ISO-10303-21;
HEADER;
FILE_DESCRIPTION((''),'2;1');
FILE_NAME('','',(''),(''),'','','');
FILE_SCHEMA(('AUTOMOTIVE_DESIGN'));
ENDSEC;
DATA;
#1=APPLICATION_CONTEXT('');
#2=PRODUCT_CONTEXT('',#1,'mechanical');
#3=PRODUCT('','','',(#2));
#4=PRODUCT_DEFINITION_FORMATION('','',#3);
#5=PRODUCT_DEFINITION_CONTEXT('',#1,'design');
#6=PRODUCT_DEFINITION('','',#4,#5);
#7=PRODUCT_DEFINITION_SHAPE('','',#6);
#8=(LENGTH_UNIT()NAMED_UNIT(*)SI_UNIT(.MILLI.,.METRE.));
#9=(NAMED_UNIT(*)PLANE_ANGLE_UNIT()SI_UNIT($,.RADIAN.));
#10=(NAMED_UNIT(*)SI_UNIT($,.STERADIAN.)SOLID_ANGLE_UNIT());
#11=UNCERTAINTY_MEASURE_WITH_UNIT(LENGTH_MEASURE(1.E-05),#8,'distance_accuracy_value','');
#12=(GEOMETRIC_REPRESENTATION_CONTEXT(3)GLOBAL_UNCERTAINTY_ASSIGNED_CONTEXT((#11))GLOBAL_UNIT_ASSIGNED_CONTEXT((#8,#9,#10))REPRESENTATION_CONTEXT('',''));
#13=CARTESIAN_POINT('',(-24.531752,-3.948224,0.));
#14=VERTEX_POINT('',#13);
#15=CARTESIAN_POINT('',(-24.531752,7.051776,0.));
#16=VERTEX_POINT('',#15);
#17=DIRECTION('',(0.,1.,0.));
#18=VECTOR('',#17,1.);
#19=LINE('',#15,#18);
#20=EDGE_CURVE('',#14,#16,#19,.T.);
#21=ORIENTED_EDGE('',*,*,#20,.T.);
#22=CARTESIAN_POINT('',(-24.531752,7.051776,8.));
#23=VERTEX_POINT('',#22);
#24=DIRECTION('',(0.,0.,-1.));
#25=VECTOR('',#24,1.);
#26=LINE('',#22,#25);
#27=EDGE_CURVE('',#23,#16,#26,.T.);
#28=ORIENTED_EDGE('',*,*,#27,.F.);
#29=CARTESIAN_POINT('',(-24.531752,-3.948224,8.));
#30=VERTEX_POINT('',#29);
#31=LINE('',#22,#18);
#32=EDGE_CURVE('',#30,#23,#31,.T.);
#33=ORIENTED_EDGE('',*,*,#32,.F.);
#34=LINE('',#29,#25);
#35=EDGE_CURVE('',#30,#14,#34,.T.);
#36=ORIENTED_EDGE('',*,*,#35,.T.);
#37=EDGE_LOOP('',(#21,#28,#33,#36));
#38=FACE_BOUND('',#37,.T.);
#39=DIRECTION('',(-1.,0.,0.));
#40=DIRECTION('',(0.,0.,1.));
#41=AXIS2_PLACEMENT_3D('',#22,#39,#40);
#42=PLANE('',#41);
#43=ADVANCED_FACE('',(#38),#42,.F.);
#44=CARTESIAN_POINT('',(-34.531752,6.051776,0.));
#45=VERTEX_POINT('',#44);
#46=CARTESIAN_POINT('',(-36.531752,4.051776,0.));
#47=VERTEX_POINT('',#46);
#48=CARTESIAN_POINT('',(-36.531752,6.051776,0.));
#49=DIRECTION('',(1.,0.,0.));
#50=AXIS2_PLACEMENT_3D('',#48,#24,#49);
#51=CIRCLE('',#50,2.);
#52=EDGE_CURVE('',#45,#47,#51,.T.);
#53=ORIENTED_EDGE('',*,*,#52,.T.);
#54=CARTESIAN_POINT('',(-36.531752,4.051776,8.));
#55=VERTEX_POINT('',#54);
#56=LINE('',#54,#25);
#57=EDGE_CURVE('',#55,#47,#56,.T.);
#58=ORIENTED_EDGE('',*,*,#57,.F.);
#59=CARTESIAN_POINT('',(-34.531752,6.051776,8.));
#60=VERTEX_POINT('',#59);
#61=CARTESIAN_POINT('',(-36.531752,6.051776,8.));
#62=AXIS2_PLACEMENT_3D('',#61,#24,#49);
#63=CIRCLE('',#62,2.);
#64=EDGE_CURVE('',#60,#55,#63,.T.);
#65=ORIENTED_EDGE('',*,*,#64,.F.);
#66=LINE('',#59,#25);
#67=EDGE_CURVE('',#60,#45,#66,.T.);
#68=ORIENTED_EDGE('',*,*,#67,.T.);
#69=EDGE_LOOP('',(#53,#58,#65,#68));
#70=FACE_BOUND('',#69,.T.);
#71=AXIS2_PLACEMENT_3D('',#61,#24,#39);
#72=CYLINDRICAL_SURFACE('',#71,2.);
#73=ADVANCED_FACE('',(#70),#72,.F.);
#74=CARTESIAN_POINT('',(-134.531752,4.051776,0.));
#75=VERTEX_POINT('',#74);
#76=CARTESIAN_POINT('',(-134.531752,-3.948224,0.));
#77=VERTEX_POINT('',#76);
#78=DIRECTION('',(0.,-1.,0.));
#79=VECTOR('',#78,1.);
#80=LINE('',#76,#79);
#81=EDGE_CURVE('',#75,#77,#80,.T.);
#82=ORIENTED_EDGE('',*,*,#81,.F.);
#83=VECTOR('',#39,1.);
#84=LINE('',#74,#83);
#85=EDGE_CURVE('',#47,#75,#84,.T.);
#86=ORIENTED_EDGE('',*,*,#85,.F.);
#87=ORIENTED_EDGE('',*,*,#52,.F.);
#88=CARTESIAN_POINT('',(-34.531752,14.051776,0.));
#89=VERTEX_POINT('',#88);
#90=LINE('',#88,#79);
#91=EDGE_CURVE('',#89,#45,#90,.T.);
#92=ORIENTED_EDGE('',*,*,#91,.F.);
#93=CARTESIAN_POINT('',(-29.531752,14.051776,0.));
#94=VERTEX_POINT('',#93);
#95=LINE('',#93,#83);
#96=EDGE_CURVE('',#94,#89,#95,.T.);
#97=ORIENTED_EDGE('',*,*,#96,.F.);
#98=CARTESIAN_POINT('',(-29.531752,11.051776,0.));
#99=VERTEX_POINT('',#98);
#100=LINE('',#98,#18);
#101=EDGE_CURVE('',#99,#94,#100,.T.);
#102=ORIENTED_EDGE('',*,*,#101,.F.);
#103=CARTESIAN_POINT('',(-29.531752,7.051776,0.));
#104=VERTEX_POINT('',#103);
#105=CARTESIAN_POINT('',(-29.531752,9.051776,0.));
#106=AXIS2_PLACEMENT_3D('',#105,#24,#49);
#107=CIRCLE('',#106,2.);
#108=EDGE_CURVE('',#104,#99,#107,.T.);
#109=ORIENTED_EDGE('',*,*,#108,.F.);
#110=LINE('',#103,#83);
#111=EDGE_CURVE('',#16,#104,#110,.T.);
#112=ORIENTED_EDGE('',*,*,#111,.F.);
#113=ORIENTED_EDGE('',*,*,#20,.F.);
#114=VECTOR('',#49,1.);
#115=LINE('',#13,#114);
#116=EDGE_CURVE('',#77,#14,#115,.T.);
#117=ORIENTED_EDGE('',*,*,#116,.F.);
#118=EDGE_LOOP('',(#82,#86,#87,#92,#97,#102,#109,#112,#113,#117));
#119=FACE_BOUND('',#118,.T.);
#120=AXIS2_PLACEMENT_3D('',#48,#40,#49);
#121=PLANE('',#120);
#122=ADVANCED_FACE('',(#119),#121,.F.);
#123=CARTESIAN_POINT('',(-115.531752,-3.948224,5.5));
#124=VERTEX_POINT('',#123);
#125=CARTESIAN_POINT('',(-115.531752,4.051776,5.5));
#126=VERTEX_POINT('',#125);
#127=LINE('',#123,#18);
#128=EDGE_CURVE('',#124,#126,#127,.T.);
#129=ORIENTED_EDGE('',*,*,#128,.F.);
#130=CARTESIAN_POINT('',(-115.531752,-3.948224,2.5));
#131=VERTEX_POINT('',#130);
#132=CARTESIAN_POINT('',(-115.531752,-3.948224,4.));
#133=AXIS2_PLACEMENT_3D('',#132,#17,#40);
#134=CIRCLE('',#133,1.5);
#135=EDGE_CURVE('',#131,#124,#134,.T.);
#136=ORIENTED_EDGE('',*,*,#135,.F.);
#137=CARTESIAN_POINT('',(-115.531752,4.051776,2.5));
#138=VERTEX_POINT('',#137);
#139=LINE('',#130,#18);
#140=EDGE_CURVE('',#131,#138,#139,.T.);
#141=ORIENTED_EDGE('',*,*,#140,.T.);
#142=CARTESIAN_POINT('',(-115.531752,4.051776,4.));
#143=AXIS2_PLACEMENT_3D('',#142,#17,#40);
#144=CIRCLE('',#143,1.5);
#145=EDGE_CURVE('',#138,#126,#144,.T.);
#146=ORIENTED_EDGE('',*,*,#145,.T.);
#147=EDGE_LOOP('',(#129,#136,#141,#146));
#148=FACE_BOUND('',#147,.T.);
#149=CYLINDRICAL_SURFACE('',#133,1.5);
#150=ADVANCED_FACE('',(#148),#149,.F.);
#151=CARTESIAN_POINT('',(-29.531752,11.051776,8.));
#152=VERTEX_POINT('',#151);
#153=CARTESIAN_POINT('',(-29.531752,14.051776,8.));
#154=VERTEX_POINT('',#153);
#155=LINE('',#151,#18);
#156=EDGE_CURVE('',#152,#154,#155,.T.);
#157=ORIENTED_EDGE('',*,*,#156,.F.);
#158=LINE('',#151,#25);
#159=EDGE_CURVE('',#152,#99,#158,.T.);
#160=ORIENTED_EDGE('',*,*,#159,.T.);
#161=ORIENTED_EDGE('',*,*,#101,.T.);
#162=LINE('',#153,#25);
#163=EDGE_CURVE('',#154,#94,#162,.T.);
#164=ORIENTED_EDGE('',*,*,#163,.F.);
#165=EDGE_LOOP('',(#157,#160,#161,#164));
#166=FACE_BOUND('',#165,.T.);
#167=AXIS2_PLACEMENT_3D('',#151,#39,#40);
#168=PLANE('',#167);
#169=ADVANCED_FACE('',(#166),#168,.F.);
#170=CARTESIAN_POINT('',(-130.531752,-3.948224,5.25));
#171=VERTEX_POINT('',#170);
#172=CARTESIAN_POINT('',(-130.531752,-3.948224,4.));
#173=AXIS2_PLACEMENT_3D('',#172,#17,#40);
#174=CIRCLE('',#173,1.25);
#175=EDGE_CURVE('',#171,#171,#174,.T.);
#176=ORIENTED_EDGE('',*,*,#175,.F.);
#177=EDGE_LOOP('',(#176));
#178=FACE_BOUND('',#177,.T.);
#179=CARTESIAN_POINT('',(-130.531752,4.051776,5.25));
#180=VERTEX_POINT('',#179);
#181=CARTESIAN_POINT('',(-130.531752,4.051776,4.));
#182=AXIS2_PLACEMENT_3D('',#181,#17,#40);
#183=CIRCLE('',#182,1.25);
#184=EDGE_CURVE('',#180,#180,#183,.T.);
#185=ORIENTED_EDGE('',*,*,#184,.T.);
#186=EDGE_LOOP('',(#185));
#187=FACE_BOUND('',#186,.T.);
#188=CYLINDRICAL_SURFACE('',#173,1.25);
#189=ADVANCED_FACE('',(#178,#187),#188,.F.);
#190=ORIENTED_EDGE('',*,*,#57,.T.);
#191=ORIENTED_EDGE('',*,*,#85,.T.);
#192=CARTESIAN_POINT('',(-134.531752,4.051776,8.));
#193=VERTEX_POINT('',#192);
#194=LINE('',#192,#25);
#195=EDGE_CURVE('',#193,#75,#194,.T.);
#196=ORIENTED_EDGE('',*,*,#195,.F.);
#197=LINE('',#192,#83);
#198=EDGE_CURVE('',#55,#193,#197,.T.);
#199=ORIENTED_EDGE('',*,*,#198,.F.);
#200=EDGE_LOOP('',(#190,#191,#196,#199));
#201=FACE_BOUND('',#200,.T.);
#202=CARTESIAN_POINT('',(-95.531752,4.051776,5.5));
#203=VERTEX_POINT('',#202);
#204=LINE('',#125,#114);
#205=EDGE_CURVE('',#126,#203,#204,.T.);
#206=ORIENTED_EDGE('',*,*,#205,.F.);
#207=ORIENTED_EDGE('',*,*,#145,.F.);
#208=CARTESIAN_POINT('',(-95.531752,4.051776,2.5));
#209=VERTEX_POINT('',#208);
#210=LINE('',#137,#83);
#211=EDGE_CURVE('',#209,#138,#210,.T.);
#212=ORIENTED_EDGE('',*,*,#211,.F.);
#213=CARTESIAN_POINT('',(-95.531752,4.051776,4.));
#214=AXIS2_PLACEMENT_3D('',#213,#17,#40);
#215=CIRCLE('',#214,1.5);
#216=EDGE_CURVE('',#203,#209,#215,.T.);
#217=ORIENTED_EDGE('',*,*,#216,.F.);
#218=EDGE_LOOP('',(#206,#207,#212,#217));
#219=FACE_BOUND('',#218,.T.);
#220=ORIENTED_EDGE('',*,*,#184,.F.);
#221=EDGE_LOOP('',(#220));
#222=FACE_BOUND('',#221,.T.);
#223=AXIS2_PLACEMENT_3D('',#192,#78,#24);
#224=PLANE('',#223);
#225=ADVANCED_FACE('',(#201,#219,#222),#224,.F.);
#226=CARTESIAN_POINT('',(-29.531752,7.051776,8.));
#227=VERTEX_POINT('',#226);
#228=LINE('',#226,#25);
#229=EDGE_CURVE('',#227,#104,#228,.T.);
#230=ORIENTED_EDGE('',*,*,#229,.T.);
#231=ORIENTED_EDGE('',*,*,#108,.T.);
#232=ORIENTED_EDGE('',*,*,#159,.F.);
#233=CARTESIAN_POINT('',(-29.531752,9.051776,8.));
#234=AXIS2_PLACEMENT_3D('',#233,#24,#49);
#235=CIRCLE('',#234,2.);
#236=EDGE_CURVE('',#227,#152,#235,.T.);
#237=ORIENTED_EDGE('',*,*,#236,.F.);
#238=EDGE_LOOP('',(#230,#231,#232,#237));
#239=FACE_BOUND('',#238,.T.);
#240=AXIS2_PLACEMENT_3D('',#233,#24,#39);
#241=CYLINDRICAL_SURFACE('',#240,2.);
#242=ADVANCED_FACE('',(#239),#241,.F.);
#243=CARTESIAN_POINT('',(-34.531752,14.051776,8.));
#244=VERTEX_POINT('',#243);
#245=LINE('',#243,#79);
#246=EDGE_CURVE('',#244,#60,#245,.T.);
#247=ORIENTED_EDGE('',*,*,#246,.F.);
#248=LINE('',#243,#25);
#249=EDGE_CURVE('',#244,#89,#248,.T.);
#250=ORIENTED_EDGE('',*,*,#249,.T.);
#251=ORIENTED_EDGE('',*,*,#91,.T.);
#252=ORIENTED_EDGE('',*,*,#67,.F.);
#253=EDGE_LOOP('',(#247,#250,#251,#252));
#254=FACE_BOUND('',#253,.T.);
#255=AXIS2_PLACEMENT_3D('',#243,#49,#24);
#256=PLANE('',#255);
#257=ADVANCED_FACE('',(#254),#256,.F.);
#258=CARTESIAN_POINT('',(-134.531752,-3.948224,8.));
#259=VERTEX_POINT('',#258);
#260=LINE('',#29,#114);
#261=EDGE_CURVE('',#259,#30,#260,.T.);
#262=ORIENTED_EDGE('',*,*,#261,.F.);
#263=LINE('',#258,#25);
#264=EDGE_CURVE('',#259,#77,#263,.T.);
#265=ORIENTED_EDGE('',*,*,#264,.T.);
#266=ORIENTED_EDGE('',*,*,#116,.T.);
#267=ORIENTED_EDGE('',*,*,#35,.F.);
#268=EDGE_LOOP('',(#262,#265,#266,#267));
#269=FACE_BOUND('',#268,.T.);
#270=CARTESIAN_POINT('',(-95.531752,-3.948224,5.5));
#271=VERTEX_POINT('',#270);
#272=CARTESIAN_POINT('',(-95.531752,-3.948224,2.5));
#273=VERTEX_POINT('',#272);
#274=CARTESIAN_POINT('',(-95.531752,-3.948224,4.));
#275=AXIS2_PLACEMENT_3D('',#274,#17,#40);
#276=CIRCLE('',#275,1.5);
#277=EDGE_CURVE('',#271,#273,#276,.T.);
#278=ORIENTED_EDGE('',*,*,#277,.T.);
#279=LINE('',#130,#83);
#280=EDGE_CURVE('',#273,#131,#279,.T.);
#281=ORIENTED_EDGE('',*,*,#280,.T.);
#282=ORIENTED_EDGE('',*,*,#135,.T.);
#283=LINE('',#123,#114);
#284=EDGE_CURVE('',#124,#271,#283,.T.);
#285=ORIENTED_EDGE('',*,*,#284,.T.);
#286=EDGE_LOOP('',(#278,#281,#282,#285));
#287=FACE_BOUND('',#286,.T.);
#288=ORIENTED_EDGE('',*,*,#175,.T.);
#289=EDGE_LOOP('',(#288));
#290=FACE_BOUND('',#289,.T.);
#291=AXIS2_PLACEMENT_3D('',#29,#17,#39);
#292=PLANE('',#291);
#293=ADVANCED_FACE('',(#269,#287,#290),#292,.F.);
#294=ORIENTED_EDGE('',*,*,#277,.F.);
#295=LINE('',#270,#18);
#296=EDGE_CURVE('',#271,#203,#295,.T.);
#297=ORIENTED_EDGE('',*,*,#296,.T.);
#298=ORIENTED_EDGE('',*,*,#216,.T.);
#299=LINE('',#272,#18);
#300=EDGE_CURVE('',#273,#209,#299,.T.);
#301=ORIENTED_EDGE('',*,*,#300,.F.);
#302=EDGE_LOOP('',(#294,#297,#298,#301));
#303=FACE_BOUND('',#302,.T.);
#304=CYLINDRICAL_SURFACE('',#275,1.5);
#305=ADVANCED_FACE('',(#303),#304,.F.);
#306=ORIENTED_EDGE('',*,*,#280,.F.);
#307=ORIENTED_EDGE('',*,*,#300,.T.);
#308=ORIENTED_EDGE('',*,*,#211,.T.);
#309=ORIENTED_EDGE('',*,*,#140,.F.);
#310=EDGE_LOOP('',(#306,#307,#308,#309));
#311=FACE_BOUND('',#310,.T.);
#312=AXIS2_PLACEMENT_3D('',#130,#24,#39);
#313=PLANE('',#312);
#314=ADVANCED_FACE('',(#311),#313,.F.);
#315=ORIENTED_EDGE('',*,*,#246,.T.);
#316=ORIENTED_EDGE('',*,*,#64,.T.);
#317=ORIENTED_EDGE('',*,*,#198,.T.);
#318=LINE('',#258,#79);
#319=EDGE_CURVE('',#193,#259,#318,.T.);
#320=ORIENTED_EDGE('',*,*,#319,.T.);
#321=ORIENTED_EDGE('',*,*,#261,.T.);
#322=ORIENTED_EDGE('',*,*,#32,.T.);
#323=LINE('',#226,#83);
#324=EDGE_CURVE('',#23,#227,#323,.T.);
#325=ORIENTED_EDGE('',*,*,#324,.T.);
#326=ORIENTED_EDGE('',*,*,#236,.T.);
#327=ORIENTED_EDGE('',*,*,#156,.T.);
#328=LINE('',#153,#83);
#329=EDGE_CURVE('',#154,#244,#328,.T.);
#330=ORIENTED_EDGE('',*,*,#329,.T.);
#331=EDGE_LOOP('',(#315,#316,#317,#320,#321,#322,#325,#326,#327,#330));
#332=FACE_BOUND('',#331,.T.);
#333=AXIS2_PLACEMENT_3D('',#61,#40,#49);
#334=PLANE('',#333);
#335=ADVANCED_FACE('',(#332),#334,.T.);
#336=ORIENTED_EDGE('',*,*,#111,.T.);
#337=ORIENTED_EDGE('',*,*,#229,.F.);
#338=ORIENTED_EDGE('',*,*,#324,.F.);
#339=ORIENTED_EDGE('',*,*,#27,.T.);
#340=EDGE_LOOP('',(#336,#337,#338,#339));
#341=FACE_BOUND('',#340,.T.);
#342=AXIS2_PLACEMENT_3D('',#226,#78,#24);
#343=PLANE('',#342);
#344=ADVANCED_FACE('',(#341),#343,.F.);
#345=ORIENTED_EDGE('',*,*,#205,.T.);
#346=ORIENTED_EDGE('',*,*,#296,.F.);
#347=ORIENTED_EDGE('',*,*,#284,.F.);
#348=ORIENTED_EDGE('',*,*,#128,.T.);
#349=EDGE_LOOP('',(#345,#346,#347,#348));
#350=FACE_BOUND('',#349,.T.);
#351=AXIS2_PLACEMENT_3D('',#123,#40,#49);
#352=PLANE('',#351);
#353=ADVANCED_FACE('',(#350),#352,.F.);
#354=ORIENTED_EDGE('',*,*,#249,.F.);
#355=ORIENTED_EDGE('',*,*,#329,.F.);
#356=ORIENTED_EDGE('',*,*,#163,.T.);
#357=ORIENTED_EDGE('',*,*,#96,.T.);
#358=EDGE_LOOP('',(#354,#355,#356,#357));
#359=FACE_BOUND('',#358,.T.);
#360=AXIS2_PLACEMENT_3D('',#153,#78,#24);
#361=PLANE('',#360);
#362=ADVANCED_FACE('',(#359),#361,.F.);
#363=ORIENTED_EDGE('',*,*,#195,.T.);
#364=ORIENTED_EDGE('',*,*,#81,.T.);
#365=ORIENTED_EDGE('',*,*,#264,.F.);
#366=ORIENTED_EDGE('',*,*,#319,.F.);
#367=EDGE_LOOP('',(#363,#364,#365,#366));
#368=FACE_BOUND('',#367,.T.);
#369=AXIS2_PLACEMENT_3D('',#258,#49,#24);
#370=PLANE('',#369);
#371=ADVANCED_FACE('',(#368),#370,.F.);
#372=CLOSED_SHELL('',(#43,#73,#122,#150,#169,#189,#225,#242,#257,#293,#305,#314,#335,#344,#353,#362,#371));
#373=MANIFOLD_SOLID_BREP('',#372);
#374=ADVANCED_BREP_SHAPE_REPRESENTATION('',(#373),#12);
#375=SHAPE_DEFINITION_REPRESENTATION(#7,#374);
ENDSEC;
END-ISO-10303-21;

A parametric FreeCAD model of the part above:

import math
import FreeCAD as App
import Part
import Sketcher
Q = App.Units.Quantity

doc = App.newDocument("Part")
body = doc.addObject("PartDesign::Body", "Body")

# Sketch on XY plane
sketch1 = body.newObject("Sketcher::SketchObject", "Sketch")
sketch1.AttachmentSupport = (doc.getObject("XY_Plane"), [""])
sketch1.MapMode = "FlatFace"
sketch1.addGeometry(Part.LineSegment(App.Vector(-24.531752, 7.051776, 0), App.Vector(-29.531752, 7.051776, 0)), False)
sketch1.addGeometry(Part.ArcOfCircle(Part.Circle(App.Vector(-29.531752, 9.051776, 0), App.Vector(0, 0, 1), 2), math.radians(90), math.radians(270)), False)
sketch1.addGeometry(Part.LineSegment(App.Vector(-29.531752, 11.051776, 0), App.Vector(-29.531752, 14.051776, 0)), False)
sketch1.addGeometry(Part.LineSegment(App.Vector(-29.531752, 14.051776, 0), App.Vector(-34.531752, 14.051776, 0)), False)
sketch1.addGeometry(Part.LineSegment(App.Vector(-34.531752, 14.051776, 0), App.Vector(-34.531752, 6.051776, 0)), False)
sketch1.addGeometry(Part.ArcOfCircle(Part.Circle(App.Vector(-36.531752, 6.051776, 0), App.Vector(0, 0, 1), 2), math.radians(-90), math.radians(0)), False)
sketch1.addGeometry(Part.LineSegment(App.Vector(-36.531752, 4.051776, 0), App.Vector(-134.531752, 4.051776, 0)), False)
sketch1.addGeometry(Part.LineSegment(App.Vector(-134.531752, 4.051776, 0), App.Vector(-134.531752, -3.948224, 0)), False)
sketch1.addGeometry(Part.LineSegment(App.Vector(-134.531752, -3.948224, 0), App.Vector(-24.531752, -3.948224, 0)), False)
sketch1.addGeometry(Part.LineSegment(App.Vector(-24.531752, -3.948224, 0), App.Vector(-24.531752, 7.051776, 0)), False)
sketch1.addConstraint(Sketcher.Constraint("Tangent", 0, 2, 1, 2))
sketch1.addConstraint(Sketcher.Constraint("Coincident", 1, 1, 2, 1))
sketch1.addConstraint(Sketcher.Constraint("Coincident", 2, 2, 3, 1))
sketch1.addConstraint(Sketcher.Constraint("Coincident", 3, 2, 4, 1))
sketch1.addConstraint(Sketcher.Constraint("Tangent", 4, 2, 5, 2))
sketch1.addConstraint(Sketcher.Constraint("Tangent", 5, 1, 6, 1))
sketch1.addConstraint(Sketcher.Constraint("Coincident", 6, 2, 7, 1))
sketch1.addConstraint(Sketcher.Constraint("Coincident", 7, 2, 8, 1))
sketch1.addConstraint(Sketcher.Constraint("Coincident", 8, 2, 9, 1))
sketch1.addConstraint(Sketcher.Constraint("Coincident", 9, 2, 0, 1))
sketch1.addConstraint(Sketcher.Constraint("Horizontal", 0))
sketch1.addConstraint(Sketcher.Constraint("Vertical", 2))
sketch1.addConstraint(Sketcher.Constraint("Horizontal", 3))
sketch1.addConstraint(Sketcher.Constraint("Vertical", 4))
sketch1.addConstraint(Sketcher.Constraint("Horizontal", 6))
sketch1.addConstraint(Sketcher.Constraint("Vertical", 7))
sketch1.addConstraint(Sketcher.Constraint("Horizontal", 8))
sketch1.addConstraint(Sketcher.Constraint("Vertical", 9))
sketch1.addConstraint(Sketcher.Constraint("Equal", 1, 5))
sketch1.addConstraint(Sketcher.Constraint("Vertical", 0, 2, 1, 1))
sketch1.addConstraint(Sketcher.Constraint("Equal", 0, 3))
sketch1.addConstraint(Sketcher.Constraint("Equal", 4, 7))
sketch1.addConstraint(Sketcher.Constraint("Radius", 1, Q("2 mm")))
sketch1.addConstraint(Sketcher.Constraint("DistanceX", 0, 2, 0, 1, Q("5 mm")))
sketch1.addConstraint(Sketcher.Constraint("DistanceX", 6, 2, 6, 1, Q("98 mm")))
sketch1.addConstraint(Sketcher.Constraint("DistanceY", 2, 1, 2, 2, Q("3 mm")))
sketch1.addConstraint(Sketcher.Constraint("DistanceY", 4, 2, 4, 1, Q("8 mm")))
sketch1.addConstraint(Sketcher.Constraint("DistanceX", 1, 3, -1, 1, Q("29.531752 mm")))
sketch1.addConstraint(Sketcher.Constraint("DistanceY", -1, 1, 1, 3, Q("9.051776 mm")))
pad1 = body.newObject("PartDesign::Pad", "Pad")
pad1.Profile = sketch1
pad1.Length = 8

# Sketch on XZ plane
sketch2 = body.newObject("Sketcher::SketchObject", "Sketch001")
sketch2.AttachmentSupport = (doc.getObject("XZ_Plane"), [""])
sketch2.MapMode = "FlatFace"
sketch2.AttachmentOffset = App.Placement(App.Vector(0, 0, -4.051776), App.Rotation())
sketch2.addGeometry(Part.Circle(App.Vector(-130.531752, 4, 0), App.Vector(0, 0, 1), 1.25), False)
sketch2.addConstraint(Sketcher.Constraint("Diameter", 0, Q("2.5 mm")))
sketch2.addConstraint(Sketcher.Constraint("DistanceY", -1, 1, 0, 3, Q("4 mm")))
sketch2.addConstraint(Sketcher.Constraint("DistanceX", 0, 3, -1, 1, Q("130.531752 mm")))
pocket1 = body.newObject("PartDesign::Pocket", "Pocket")
pocket1.Profile = sketch2
pocket1.Length = 8
pocket1.Reversed = True

# Sketch on XZ plane
sketch3 = body.newObject("Sketcher::SketchObject", "Sketch002")
sketch3.AttachmentSupport = (doc.getObject("XZ_Plane"), [""])
sketch3.MapMode = "FlatFace"
sketch3.AttachmentOffset = App.Placement(App.Vector(0, 0, -4.051776), App.Rotation())
sketch3.addGeometry(Part.LineSegment(App.Vector(-95.531752, 2.5, 0), App.Vector(-115.531752, 2.5, 0)), False)
sketch3.addGeometry(Part.ArcOfCircle(Part.Circle(App.Vector(-115.531752, 4, 0), App.Vector(0, 0, 1), 1.5), math.radians(90), math.radians(270)), False)
sketch3.addGeometry(Part.LineSegment(App.Vector(-115.531752, 5.5, 0), App.Vector(-95.531752, 5.5, 0)), False)
sketch3.addGeometry(Part.ArcOfCircle(Part.Circle(App.Vector(-95.531752, 4, 0), App.Vector(0, 0, 1), 1.5), math.radians(-90), math.radians(90)), False)
sketch3.addConstraint(Sketcher.Constraint("Tangent", 0, 2, 1, 2))
sketch3.addConstraint(Sketcher.Constraint("Tangent", 1, 1, 2, 1))
sketch3.addConstraint(Sketcher.Constraint("Tangent", 2, 2, 3, 2))
sketch3.addConstraint(Sketcher.Constraint("Tangent", 3, 1, 0, 1))
sketch3.addConstraint(Sketcher.Constraint("Horizontal", 0))
sketch3.addConstraint(Sketcher.Constraint("Horizontal", 2))
sketch3.addConstraint(Sketcher.Constraint("Radius", 1, Q("1.5 mm")))
sketch3.addConstraint(Sketcher.Constraint("DistanceX", 0, 2, 0, 1, Q("20 mm")))
sketch3.addConstraint(Sketcher.Constraint("DistanceY", -1, 1, 1, 3, Q("4 mm")))
sketch3.addConstraint(Sketcher.Constraint("DistanceX", 1, 3, -1, 1, Q("115.531752 mm")))
pocket2 = body.newObject("PartDesign::Pocket", "Pocket001")
pocket2.Profile = sketch3
pocket2.Length = 8
pocket2.Reversed = True

doc.recompute()
